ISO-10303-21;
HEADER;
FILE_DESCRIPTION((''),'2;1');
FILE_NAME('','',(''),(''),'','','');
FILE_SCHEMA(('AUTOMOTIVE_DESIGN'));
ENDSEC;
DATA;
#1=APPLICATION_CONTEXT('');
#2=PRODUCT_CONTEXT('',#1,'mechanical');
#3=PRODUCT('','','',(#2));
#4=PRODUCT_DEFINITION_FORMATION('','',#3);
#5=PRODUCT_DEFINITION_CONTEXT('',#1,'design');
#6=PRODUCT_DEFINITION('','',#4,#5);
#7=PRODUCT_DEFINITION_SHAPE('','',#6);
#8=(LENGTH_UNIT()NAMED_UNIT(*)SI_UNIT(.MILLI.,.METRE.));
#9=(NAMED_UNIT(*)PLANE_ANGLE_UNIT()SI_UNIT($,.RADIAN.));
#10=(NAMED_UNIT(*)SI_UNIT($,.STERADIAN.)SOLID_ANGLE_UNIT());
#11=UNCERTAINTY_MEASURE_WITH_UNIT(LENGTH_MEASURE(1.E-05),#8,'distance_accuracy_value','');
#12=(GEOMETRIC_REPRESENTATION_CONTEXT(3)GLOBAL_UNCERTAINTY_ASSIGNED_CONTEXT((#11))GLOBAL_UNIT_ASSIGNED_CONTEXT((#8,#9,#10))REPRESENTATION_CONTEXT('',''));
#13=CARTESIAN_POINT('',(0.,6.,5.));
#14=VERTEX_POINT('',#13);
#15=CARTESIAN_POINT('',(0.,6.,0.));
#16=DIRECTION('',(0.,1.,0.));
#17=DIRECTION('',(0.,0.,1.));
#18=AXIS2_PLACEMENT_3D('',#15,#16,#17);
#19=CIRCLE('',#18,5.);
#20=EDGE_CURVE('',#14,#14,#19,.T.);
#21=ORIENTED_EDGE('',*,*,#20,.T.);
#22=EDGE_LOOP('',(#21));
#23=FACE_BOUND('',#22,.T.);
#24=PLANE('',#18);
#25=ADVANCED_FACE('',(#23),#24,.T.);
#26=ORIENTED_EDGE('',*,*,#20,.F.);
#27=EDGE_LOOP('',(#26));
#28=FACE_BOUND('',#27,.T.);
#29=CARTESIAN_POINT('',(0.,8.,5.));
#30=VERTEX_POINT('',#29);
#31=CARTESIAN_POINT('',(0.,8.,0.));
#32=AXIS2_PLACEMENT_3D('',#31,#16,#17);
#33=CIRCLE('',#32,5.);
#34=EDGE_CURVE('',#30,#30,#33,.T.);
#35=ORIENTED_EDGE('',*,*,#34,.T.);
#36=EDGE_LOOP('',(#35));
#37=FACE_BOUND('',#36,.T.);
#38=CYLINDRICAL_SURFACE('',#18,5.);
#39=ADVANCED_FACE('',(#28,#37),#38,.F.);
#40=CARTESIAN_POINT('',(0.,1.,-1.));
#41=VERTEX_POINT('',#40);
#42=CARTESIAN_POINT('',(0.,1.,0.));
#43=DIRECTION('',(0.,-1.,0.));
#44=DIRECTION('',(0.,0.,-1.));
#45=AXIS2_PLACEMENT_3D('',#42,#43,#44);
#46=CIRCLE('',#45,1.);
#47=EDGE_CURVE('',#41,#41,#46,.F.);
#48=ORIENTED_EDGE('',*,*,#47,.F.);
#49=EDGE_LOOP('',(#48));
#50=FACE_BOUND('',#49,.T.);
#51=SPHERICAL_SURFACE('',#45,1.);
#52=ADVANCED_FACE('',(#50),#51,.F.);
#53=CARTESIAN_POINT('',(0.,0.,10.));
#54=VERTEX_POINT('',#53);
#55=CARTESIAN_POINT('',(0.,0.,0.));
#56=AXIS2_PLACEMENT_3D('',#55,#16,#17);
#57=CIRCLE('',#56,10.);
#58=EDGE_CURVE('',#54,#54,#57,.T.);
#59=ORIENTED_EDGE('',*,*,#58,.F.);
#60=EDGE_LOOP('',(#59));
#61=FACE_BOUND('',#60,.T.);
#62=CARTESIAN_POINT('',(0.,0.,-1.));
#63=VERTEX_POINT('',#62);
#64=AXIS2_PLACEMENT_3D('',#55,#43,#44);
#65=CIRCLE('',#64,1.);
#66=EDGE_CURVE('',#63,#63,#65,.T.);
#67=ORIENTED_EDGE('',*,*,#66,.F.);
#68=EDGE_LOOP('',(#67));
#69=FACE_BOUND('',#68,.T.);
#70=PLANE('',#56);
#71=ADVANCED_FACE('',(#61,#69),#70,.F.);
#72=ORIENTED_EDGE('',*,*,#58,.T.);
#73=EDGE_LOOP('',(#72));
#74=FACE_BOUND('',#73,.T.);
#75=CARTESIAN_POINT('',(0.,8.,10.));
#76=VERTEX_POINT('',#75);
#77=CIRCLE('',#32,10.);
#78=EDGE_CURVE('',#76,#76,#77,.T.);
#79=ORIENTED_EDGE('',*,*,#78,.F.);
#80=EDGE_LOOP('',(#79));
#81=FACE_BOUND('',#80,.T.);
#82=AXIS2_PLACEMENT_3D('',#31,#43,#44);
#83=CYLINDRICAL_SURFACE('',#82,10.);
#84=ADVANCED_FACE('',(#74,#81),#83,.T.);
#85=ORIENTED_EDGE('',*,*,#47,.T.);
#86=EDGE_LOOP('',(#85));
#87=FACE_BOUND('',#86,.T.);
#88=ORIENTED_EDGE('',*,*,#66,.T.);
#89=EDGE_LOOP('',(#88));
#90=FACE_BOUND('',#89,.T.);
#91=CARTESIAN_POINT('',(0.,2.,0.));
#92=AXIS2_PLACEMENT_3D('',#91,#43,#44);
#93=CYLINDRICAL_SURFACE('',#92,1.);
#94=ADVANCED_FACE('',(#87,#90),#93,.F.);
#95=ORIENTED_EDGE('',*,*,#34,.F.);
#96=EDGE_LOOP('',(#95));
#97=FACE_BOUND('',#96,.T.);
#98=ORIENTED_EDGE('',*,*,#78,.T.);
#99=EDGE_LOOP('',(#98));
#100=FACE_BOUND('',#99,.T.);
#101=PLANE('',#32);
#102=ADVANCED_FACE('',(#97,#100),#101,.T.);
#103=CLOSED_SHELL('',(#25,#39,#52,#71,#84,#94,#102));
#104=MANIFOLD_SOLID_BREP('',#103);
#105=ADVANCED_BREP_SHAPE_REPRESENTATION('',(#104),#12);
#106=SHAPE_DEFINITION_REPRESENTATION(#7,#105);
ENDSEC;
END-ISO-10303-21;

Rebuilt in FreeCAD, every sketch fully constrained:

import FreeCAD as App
import Part
import Sketcher

V = App.Vector
Q = App.Units.Quantity


def edges_at(feature, points):
    """Names of the edges that pass closest to the given points."""
    edges = feature.Shape.Edges
    near = lambda p: min(range(len(edges)), key=lambda i: edges[i].distToShape(Part.Vertex(*p))[0])
    return sorted({f"Edge{near(p) + 1}" for p in points})

doc = App.newDocument("Part")
body = doc.addObject("PartDesign::Body", "Body")

# Sketch on XZ plane
sketch1 = body.newObject("Sketcher::SketchObject", "Sketch")
sketch1.AttachmentSupport = (doc.getObject("XZ_Plane"), [""])
sketch1.MapMode = "FlatFace"
sketch1.addGeometry(Part.Circle(V(0, 0, 0), V(0, 0, 1), 10), False)
sketch1.addConstraint([
    Sketcher.Constraint("Coincident", 0, 3, -1, 1),
    Sketcher.Constraint("Diameter", 0, Q("20 mm")),
])
pad1 = body.newObject("PartDesign::Pad", "Pad")
pad1.Profile = sketch1
pad1.Length = 8
pad1.Reversed = True

# Sketch on XZ plane
sketch2 = body.newObject("Sketcher::SketchObject", "Sketch001")
sketch2.AttachmentSupport = (doc.getObject("XZ_Plane"), [""])
sketch2.MapMode = "FlatFace"
sketch2.AttachmentOffset = App.Placement(V(0, 0, -8), App.Rotation())
sketch2.addGeometry(Part.Circle(V(0, 0, 0), V(0, 0, 1), 5), False)
sketch2.addConstraint([
    Sketcher.Constraint("Coincident", 0, 3, -1, 1),
    Sketcher.Constraint("Diameter", 0, Q("10 mm")),
])
pocket1 = body.newObject("PartDesign::Pocket", "Pocket")
pocket1.Profile = sketch2
pocket1.Length = 2
pocket1.Reversed = True

# Sketch on XZ plane
sketch3 = body.newObject("Sketcher::SketchObject", "Sketch002")
sketch3.AttachmentSupport = (doc.getObject("XZ_Plane"), [""])
sketch3.MapMode = "FlatFace"
sketch3.addGeometry(Part.Circle(V(0, 0, 0), V(0, 0, 1), 1), False)
sketch3.addConstraint([
    Sketcher.Constraint("Coincident", 0, 3, -1, 1),
    Sketcher.Constraint("Diameter", 0, Q("2 mm")),
])
pocket2 = body.newObject("PartDesign::Pocket", "Pocket001")
pocket2.Profile = sketch3
pocket2.Length = 2
doc.recompute()

fillet = body.newObject("PartDesign::Fillet", "Fillet")
fillet.Base = (pocket2, edges_at(pocket2, [(-1, 2, 0)]))
fillet.Radius = 1

doc.recompute()
